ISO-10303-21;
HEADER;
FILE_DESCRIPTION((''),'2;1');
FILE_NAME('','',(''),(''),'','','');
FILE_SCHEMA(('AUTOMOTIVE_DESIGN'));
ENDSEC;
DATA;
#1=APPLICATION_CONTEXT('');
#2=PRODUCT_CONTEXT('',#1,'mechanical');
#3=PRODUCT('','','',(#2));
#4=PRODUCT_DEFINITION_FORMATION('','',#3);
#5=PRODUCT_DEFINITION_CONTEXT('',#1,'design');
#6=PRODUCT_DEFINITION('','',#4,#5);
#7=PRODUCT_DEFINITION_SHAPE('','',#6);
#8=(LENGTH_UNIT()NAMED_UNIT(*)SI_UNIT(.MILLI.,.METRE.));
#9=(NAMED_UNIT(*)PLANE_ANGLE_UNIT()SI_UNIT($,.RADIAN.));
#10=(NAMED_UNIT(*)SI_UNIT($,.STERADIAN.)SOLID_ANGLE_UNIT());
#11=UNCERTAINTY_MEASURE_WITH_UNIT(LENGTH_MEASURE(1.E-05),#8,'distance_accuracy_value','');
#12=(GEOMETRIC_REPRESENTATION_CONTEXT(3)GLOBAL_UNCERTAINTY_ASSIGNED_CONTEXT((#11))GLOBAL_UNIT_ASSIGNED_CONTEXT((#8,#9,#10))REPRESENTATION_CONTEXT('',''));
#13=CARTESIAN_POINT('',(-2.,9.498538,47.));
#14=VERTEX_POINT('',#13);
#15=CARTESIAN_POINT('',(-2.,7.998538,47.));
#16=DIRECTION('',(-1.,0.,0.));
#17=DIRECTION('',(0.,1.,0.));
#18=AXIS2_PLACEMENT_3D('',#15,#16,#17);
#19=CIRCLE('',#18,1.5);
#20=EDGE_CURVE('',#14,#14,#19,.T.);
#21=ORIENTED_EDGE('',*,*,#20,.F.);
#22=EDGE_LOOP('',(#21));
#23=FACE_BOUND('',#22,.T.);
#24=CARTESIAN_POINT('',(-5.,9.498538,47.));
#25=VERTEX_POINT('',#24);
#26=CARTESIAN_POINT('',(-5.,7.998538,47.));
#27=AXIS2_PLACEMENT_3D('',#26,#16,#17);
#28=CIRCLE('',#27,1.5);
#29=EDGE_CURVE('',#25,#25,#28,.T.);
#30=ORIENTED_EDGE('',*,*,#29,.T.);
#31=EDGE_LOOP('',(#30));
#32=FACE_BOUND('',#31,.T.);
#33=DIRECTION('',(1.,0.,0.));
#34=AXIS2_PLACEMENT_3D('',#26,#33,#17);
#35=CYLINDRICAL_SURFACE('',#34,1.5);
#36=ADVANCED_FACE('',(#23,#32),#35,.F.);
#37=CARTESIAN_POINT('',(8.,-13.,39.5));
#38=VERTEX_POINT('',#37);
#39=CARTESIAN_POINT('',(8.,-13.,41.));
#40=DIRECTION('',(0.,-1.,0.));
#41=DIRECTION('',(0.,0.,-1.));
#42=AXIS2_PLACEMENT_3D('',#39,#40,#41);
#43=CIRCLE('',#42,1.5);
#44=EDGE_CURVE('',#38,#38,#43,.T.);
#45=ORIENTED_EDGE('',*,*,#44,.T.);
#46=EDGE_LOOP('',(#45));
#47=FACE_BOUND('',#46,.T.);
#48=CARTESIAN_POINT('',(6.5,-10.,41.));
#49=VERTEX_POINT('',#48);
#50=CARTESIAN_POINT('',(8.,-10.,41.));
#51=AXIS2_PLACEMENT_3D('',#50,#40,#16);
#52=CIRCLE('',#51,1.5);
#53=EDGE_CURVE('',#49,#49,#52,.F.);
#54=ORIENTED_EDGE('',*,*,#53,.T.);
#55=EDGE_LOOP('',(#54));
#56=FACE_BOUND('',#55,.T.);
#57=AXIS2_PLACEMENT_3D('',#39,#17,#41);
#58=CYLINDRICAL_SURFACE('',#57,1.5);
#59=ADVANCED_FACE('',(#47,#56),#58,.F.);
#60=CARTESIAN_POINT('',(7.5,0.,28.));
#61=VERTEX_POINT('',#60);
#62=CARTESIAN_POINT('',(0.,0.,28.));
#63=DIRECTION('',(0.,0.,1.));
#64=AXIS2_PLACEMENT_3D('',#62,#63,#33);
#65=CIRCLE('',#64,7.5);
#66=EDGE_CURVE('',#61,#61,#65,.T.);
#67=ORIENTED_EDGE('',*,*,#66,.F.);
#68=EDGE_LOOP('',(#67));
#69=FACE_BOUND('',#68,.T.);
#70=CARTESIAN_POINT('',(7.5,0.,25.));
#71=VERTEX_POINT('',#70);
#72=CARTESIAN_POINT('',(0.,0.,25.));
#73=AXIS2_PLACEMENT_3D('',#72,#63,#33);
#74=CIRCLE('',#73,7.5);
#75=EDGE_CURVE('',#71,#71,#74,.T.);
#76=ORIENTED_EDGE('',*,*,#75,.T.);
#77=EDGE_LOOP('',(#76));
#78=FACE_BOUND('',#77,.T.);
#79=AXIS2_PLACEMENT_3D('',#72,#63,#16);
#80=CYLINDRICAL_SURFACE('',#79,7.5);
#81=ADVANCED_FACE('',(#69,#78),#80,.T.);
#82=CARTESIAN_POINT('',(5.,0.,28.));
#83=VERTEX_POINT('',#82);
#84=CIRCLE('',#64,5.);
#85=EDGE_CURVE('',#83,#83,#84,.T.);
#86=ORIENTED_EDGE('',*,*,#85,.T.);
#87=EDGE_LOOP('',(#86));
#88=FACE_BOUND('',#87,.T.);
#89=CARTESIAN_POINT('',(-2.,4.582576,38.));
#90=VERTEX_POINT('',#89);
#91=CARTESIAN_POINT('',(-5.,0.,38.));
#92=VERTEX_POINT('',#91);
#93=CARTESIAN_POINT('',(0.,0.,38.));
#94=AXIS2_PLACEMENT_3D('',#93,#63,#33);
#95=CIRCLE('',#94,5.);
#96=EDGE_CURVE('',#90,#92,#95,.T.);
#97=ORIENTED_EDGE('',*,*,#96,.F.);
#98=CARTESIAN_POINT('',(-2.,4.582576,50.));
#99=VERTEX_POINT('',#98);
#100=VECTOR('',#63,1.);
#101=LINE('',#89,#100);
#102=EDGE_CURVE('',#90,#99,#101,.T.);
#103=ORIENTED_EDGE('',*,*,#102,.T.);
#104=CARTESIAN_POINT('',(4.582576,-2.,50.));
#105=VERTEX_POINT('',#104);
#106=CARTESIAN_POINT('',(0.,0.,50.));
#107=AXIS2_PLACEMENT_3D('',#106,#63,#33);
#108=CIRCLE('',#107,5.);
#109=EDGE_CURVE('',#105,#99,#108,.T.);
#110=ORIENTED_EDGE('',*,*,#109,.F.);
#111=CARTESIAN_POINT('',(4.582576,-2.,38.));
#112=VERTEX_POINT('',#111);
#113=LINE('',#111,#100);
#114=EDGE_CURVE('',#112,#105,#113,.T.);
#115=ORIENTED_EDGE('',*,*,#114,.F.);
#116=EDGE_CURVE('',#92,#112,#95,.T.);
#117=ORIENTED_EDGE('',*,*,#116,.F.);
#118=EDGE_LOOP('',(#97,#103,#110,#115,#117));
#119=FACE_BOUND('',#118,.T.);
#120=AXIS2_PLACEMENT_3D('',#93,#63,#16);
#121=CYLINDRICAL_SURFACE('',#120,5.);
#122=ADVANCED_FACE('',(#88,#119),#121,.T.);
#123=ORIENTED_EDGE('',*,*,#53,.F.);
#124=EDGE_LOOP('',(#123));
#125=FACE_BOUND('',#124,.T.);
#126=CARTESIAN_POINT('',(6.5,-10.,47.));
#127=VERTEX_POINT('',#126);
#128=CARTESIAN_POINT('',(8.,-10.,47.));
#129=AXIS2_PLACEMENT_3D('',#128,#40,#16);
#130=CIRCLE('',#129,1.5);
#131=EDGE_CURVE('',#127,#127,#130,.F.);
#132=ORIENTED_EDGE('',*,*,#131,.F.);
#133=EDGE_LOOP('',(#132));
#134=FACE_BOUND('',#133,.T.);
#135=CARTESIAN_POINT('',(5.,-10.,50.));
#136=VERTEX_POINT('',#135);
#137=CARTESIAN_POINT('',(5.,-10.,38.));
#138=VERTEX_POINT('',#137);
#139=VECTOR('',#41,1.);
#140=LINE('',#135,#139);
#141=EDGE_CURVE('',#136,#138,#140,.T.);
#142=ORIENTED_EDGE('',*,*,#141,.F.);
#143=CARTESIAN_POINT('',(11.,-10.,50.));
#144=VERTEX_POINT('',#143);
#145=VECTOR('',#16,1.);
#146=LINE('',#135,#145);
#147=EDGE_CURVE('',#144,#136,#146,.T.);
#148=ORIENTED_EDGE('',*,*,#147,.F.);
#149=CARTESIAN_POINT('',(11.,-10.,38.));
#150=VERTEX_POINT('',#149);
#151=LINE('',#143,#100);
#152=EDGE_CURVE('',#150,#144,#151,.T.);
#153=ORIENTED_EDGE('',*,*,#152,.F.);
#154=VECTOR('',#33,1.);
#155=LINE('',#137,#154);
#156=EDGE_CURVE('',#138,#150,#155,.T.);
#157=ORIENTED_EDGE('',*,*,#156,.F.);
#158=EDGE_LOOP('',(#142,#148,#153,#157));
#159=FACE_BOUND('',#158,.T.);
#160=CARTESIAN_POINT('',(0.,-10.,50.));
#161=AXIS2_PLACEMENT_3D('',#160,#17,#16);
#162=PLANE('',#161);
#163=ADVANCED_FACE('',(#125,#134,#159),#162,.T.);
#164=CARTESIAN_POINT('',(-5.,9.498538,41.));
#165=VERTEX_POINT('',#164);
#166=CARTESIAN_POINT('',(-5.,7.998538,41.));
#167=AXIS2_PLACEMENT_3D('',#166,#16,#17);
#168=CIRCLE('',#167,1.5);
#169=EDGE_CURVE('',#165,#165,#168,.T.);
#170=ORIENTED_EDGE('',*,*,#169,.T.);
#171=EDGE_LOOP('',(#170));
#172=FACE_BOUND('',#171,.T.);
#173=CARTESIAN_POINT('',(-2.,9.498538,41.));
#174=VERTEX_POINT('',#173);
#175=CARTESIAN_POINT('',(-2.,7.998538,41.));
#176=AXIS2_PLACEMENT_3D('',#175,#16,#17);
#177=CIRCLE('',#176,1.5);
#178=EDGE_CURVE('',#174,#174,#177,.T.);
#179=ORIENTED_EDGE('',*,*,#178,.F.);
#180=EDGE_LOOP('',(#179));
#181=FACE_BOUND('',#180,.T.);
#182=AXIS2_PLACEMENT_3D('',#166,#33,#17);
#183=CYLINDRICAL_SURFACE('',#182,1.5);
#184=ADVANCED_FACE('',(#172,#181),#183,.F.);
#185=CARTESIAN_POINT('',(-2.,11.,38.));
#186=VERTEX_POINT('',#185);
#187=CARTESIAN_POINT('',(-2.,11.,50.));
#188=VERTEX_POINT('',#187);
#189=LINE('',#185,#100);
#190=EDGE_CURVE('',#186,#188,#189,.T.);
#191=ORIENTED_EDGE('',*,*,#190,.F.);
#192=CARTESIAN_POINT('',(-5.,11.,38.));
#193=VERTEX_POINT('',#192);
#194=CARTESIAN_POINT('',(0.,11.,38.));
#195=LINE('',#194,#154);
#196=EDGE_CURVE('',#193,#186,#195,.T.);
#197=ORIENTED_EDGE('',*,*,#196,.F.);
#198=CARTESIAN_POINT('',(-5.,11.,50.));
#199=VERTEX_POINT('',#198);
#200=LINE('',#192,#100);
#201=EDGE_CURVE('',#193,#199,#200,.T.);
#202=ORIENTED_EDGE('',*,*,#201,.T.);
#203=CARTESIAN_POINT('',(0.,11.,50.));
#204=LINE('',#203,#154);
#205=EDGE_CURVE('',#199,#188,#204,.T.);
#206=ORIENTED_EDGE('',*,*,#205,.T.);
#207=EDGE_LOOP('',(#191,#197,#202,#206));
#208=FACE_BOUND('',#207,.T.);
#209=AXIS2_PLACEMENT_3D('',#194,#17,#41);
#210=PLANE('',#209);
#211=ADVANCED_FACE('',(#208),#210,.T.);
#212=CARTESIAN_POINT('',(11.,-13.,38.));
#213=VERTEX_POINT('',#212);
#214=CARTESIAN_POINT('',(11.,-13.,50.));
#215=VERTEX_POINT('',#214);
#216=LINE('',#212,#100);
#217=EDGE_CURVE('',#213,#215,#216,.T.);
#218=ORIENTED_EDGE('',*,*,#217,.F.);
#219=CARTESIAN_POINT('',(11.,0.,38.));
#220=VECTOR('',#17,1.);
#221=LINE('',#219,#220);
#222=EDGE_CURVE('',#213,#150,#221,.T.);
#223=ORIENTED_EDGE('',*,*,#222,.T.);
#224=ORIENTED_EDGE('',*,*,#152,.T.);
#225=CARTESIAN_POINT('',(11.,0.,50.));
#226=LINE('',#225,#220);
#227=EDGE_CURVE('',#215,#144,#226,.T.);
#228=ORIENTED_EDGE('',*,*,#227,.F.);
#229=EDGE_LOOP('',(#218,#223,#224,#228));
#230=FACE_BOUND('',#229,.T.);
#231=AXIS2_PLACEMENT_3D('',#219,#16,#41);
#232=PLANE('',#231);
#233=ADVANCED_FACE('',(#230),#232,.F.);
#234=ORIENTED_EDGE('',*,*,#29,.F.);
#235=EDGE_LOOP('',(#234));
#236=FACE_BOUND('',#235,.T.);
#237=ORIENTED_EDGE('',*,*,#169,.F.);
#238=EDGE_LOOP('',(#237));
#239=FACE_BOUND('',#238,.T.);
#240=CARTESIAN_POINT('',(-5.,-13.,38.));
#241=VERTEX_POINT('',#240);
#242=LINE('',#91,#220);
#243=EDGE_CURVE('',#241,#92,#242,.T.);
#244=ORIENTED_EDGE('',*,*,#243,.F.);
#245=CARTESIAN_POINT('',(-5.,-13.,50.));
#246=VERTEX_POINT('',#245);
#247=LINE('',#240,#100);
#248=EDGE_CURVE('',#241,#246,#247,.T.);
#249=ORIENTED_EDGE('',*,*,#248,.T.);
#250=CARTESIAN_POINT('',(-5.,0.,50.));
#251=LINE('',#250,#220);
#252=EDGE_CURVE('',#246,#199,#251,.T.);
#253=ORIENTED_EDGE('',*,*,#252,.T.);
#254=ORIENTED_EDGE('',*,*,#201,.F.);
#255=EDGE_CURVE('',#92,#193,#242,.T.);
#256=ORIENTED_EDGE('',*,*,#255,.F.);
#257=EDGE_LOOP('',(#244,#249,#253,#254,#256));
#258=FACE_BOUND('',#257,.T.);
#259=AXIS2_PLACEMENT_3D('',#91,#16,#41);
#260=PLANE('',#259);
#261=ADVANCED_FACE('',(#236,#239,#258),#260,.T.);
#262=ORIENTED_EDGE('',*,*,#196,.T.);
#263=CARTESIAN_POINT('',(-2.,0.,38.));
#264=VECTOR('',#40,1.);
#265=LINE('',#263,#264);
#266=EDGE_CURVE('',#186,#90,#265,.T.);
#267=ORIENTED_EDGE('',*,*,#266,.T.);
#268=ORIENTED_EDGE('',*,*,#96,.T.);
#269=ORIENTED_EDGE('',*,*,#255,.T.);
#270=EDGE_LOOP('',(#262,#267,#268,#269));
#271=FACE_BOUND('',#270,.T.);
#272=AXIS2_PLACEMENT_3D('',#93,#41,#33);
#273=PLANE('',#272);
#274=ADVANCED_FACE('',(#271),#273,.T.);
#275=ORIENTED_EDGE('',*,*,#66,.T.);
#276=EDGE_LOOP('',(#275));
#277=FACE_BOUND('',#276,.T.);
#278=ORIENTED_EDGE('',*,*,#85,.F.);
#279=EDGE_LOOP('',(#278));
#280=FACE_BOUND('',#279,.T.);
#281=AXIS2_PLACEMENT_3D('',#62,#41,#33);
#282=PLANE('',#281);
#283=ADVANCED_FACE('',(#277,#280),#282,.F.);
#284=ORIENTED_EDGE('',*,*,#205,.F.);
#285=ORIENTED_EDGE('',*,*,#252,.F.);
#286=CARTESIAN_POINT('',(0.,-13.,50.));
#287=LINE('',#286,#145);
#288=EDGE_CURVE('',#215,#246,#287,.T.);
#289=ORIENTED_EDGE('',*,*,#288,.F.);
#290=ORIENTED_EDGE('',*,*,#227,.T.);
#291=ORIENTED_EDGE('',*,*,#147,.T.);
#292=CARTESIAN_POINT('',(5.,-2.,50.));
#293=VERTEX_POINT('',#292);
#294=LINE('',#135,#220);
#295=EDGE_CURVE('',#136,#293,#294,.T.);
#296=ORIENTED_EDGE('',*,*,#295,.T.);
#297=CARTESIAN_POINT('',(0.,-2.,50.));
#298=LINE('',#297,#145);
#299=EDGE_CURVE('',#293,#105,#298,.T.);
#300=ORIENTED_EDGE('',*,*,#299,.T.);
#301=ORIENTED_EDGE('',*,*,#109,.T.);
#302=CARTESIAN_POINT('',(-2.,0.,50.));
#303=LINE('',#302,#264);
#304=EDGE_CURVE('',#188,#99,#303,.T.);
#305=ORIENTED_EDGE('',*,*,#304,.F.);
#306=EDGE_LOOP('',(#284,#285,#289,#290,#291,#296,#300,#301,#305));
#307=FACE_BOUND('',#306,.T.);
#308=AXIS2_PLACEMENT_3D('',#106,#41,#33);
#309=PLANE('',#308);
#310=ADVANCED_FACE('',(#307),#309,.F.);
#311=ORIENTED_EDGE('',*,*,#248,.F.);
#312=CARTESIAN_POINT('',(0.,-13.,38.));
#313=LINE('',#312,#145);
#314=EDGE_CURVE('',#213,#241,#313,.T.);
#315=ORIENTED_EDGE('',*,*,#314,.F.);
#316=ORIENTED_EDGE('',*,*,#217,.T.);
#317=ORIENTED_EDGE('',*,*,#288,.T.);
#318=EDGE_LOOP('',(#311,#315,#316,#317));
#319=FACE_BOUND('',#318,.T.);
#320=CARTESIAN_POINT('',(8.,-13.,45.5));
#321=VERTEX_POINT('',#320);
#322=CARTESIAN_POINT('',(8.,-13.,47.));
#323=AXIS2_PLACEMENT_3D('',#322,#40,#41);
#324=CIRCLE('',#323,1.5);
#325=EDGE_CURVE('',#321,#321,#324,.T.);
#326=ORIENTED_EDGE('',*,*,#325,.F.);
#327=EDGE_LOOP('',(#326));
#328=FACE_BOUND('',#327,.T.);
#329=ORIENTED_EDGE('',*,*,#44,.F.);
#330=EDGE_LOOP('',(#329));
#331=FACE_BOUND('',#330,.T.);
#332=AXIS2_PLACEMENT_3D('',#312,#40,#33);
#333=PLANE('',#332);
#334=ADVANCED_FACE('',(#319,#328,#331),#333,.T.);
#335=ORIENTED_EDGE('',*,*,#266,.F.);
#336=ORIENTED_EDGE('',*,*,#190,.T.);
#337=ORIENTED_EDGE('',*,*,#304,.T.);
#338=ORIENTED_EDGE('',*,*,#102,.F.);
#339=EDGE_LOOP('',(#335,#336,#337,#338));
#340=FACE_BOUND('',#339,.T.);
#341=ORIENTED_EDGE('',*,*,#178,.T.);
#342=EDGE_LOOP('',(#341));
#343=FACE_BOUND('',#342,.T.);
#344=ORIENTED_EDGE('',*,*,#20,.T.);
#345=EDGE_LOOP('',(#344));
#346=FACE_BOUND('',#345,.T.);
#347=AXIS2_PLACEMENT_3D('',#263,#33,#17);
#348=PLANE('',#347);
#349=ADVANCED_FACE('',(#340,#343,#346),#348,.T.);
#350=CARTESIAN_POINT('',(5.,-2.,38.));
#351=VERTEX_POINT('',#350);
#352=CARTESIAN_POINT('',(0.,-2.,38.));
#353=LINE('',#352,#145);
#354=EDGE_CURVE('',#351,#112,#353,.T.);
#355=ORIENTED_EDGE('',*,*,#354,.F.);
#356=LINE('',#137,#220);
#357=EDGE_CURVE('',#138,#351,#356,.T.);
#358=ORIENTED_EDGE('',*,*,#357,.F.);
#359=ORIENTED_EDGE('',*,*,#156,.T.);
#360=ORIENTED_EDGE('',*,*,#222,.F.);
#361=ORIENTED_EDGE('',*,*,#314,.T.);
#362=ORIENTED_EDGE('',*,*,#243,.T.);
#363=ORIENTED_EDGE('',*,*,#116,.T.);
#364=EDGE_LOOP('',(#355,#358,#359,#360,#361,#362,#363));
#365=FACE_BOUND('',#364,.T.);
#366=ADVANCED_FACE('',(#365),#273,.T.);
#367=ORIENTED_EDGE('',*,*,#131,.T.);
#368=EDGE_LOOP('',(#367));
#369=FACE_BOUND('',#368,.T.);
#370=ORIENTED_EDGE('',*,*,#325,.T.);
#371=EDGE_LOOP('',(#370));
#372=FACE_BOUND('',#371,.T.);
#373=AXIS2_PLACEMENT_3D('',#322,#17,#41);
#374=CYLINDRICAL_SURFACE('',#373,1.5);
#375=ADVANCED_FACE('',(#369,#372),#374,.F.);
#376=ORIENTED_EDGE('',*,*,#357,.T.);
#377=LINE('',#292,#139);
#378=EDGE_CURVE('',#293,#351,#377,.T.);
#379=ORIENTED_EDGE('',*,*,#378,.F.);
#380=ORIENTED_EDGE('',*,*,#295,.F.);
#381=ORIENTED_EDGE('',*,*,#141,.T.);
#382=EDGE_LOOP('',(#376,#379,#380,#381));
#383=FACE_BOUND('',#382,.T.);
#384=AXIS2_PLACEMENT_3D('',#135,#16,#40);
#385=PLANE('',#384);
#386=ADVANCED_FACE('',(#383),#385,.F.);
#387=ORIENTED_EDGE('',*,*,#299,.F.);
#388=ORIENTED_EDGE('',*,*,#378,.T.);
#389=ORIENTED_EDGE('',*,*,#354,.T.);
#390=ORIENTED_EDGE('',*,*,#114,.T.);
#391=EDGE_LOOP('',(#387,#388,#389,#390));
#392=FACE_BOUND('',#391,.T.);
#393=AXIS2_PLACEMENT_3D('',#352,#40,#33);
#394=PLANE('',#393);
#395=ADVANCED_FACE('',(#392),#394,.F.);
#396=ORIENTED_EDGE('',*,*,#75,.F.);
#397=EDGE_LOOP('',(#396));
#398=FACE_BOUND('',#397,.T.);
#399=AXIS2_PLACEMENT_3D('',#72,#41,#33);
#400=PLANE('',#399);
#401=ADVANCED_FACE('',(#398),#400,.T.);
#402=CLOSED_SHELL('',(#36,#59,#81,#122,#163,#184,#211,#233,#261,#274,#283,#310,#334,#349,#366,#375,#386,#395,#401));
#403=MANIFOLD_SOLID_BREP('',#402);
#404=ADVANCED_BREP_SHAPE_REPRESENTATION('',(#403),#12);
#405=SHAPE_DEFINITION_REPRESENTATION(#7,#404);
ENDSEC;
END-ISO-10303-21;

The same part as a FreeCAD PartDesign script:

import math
import FreeCAD as App
import Part
import Sketcher

doc = App.newDocument("Part")
body = doc.addObject("PartDesign::Body", "Body")

sketch1 = body.newObject("Sketcher::SketchObject", "Sketch")
sketch1.AttachmentSupport = (doc.getObject("XY_Plane"), [""])
sketch1.MapMode = "FlatFace"
sketch1.addGeometry(Part.LineSegment(App.Vector(11, -13, 0), App.Vector(11, -2, 0)), False)
sketch1.addGeometry(Part.LineSegment(App.Vector(11, -2, 0), App.Vector(4.6, -2, 0)), False)
sketch1.addGeometry(Part.ArcOfCircle(Part.Circle(App.Vector(0, 0, 0), App.Vector(0, 0, 1), 5), math.radians(-24), math.radians(114)), False)
sketch1.addGeometry(Part.LineSegment(App.Vector(-2, 4.6, 0), App.Vector(-2, 11, 0)), False)
sketch1.addGeometry(Part.LineSegment(App.Vector(-2, 11, 0), App.Vector(-5, 11, 0)), False)
sketch1.addGeometry(Part.LineSegment(App.Vector(-5, 11, 0), App.Vector(-5, -13, 0)), False)
sketch1.addGeometry(Part.LineSegment(App.Vector(-5, -13, 0), App.Vector(11, -13, 0)), False)
sketch1.addConstraint(Sketcher.Constraint("Coincident", 0, 2, 1, 1))
sketch1.addConstraint(Sketcher.Constraint("Coincident", 1, 2, 2, 1))
sketch1.addConstraint(Sketcher.Constraint("Coincident", 2, 2, 3, 1))
sketch1.addConstraint(Sketcher.Constraint("Coincident", 3, 2, 4, 1))
sketch1.addConstraint(Sketcher.Constraint("Coincident", 4, 2, 5, 1))
sketch1.addConstraint(Sketcher.Constraint("Coincident", 5, 2, 6, 1))
sketch1.addConstraint(Sketcher.Constraint("Coincident", 6, 2, 0, 1))
sketch1.addConstraint(Sketcher.Constraint("Vertical", 0))
sketch1.addConstraint(Sketcher.Constraint("Horizontal", 1))
sketch1.addConstraint(Sketcher.Constraint("Vertical", 3))
sketch1.addConstraint(Sketcher.Constraint("Horizontal", 4))
sketch1.addConstraint(Sketcher.Constraint("Vertical", 5))
sketch1.addConstraint(Sketcher.Constraint("Horizontal", 6))
sketch1.addConstraint(Sketcher.Constraint("Coincident", 2, 3, -1, 1))
sketch1.addConstraint(Sketcher.Constraint("Equal", 1, 3))
sketch1.addConstraint(Sketcher.Constraint("Radius", 2, 5.0))
sketch1.addConstraint(Sketcher.Constraint("DistanceX", 4, 2, 4, 1, 3.0))
sketch1.addConstraint(Sketcher.Constraint("DistanceX", 6, 1, 6, 2, 16.0))
sketch1.addConstraint(Sketcher.Constraint("DistanceY", 0, 1, 0, 2, 11.0))
sketch1.addConstraint(Sketcher.Constraint("DistanceY", 5, 2, 5, 1, 24.0))
sketch1.addConstraint(Sketcher.Constraint("DistanceX", -1, 1, 0, 2, 11.0))
pad1 = body.newObject("PartDesign::Pad", "Pad")
pad1.Profile = sketch1
pad1.Length = 12

sketch2 = body.newObject("Sketcher::SketchObject", "Sketch001")
sketch2.AttachmentSupport = (doc.getObject("XY_Plane"), [""])
sketch2.MapMode = "FlatFace"
sketch2.AttachmentOffset = App.Placement(App.Vector(0, 0, 12), App.Rotation())
sketch2.addGeometry(Part.Circle(App.Vector(0, 0, 0), App.Vector(0, 0, 1), 5), False)
sketch2.addConstraint(Sketcher.Constraint("Coincident", 0, 3, -1, 1))
sketch2.addConstraint(Sketcher.Constraint("Diameter", 0, 10.0))
pad2 = body.newObject("PartDesign::Pad", "Pad001")
pad2.Profile = sketch2
pad2.Length = 10

sketch3 = body.newObject("Sketcher::SketchObject", "Sketch002")
sketch3.AttachmentSupport = (doc.getObject("XY_Plane"), [""])
sketch3.MapMode = "FlatFace"
sketch3.AttachmentOffset = App.Placement(App.Vector(0, 0, 22), App.Rotation())
sketch3.addGeometry(Part.Circle(App.Vector(0, 0, 0), App.Vector(0, 0, 1), 8), False)
sketch3.addConstraint(Sketcher.Constraint("Coincident", 0, 3, -1, 1))
sketch3.addConstraint(Sketcher.Constraint("Diameter", 0, 15.0))
pad3 = body.newObject("PartDesign::Pad", "Pad002")
pad3.Profile = sketch3
pad3.Length = 3

sketch4 = body.newObject("Sketcher::SketchObject", "Sketch003")
sketch4.AttachmentSupport = (doc.getObject("YZ_Plane"), [""])
sketch4.MapMode = "FlatFace"
sketch4.AttachmentOffset = App.Placement(App.Vector(0, 0, -2), App.Rotation())
sketch4.addGeometry(Part.Circle(App.Vector(8, 9, 0), App.Vector(0, 0, 1), 1.5), False)
sketch4.addGeometry(Part.Circle(App.Vector(8, 3, 0), App.Vector(0, 0, 1), 1.5), False)
sketch4.addConstraint(Sketcher.Constraint("Equal", 0, 1))
sketch4.addConstraint(Sketcher.Constraint("Vertical", 0, 3, 1, 3))
sketch4.addConstraint(Sketcher.Constraint("Diameter", 0, 3.0))
sketch4.addConstraint(Sketcher.Constraint("DistanceY", -1, 1, 0, 3, 9.0))
sketch4.addConstraint(Sketcher.Constraint("DistanceY", -1, 1, 1, 3, 3.0))
sketch4.addConstraint(Sketcher.Constraint("DistanceX", -1, 1, 0, 3, 7.998538))
pocket1 = body.newObject("PartDesign::Pocket", "Pocket")
pocket1.Profile = sketch4
pocket1.Length = 3

sketch5 = body.newObject("Sketcher::SketchObject", "Sketch004")
sketch5.AttachmentSupport = (doc.getObject("XZ_Plane"), [""])
sketch5.MapMode = "FlatFace"
sketch5.AttachmentOffset = App.Placement(App.Vector(0, 0, 2), App.Rotation())
sketch5.addGeometry(Part.Circle(App.Vector(8, 9, 0), App.Vector(0, 0, 1), 1.5), False)
sketch5.addGeometry(Part.Circle(App.Vector(8, 3, 0), App.Vector(0, 0, 1), 1.5), False)
sketch5.addConstraint(Sketcher.Constraint("Equal", 0, 1))
sketch5.addConstraint(Sketcher.Constraint("Vertical", 0, 3, 1, 3))
sketch5.addConstraint(Sketcher.Constraint("Diameter", 0, 3.0))
sketch5.addConstraint(Sketcher.Constraint("DistanceX", -1, 1, 0, 3, 8.0))
sketch5.addConstraint(Sketcher.Constraint("DistanceY", -1, 1, 0, 3, 9.0))
sketch5.addConstraint(Sketcher.Constraint("DistanceY", -1, 1, 1, 3, 3.0))
pocket2 = body.newObject("PartDesign::Pocket", "Pocket001")
pocket2.Profile = sketch5
pocket2.Length = 11
pocket2.Reversed = True

sketch6 = body.newObject("Sketcher::SketchObject", "Sketch005")
sketch6.AttachmentSupport = (doc.getObject("XZ_Plane"), [""])
sketch6.MapMode = "FlatFace"
sketch6.AttachmentOffset = App.Placement(App.Vector(0, 0, 2), App.Rotation())
sketch6.addGeometry(Part.LineSegment(App.Vector(5, 0, 0), App.Vector(5, 12, 0)), False)
sketch6.addGeometry(Part.LineSegment(App.Vector(5, 12, 0), App.Vector(11, 12, 0)), False)
sketch6.addGeometry(Part.LineSegment(App.Vector(11, 12, 0), App.Vector(11, 0, 0)), False)
sketch6.addGeometry(Part.LineSegment(App.Vector(11, 0, 0), App.Vector(5, 0, 0)), False)
sketch6.addConstraint(Sketcher.Constraint("Coincident", 0, 2, 1, 1))
sketch6.addConstraint(Sketcher.Constraint("Coincident", 1, 2, 2, 1))
sketch6.addConstraint(Sketcher.Constraint("Coincident", 2, 2, 3, 1))
sketch6.addConstraint(Sketcher.Constraint("Coincident", 3, 2, 0, 1))
sketch6.addConstraint(Sketcher.Constraint("Vertical", 0))
sketch6.addConstraint(Sketcher.Constraint("Horizontal", 1))
sketch6.addConstraint(Sketcher.Constraint("Vertical", 2))
sketch6.addConstraint(Sketcher.Constraint("Horizontal", 3))
sketch6.addConstraint(Sketcher.Constraint("PointOnObject", 2, 2, -1))
sketch6.addConstraint(Sketcher.Constraint("DistanceX", 1, 1, 1, 2, 6.0))
sketch6.addConstraint(Sketcher.Constraint("DistanceY", 0, 1, 0, 2, 12.0))
sketch6.addConstraint(Sketcher.Constraint("DistanceX", -1, 1, 0, 2, 5.0))
pocket3 = body.newObject("PartDesign::Pocket", "Pocket002")
pocket3.Profile = sketch6
pocket3.Length = 8
pocket3.Reversed = True
body2 = doc.addObject("PartDesign::Body", "Body001")
doc.recompute()

mirroring = doc.addObject("Part::Mirroring", "Mirroring")
mirroring.Source = body
mirroring.Base = App.Vector(0, 0, 25)
mirroring.Normal = App.Vector(0, 0, 1)
body2.BaseFeature = mirroring
doc.recompute()
body.Visibility = False
mirroring.Visibility = False

doc.recompute()
